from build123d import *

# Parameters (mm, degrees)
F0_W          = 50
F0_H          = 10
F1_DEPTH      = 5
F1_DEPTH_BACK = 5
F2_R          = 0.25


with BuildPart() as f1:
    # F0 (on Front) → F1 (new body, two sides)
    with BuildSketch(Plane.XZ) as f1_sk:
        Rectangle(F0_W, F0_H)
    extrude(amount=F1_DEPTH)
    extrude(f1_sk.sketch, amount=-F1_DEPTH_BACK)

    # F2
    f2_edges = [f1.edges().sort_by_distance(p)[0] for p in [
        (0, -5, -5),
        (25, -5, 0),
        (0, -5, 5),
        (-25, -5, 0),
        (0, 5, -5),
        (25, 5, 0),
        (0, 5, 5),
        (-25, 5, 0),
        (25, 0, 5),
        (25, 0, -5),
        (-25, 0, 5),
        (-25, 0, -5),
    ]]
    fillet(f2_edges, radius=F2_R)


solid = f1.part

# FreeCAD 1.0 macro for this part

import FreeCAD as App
import Part
import Sketcher

doc = App.newDocument("Part")
params = doc.addObject("Spreadsheet::Sheet", "Params")
for row, (alias, value) in enumerate([
    ("sketch1_width", "50 mm"),
    ("sketch1_height", "10 mm"),
    ("pad1_length", "5 mm"),
    ("pad1_length2", "5 mm"),
    ("fillet_radius", "0.25 mm"),
], start=1):
    params.set(f"A{row}", alias)
    params.set(f"B{row}", "=" + value)
    params.setAlias(f"B{row}", alias)

body = doc.addObject("PartDesign::Body", "Body")

# Sketch on XZ plane
sketch1 = doc.addObject("Sketcher::SketchObject", "Sketch")
body.addObject(sketch1)
sketch1.AttachmentSupport = (doc.XZ_Plane, [""])
sketch1.MapMode = "FlatFace"
sketch1.addGeometry(Part.LineSegment(App.Vector(-25, 5, 0), App.Vector(-25, -5, 0)), False)
sketch1.addGeometry(Part.LineSegment(App.Vector(-25, -5, 0), App.Vector(25, -5, 0)), False)
sketch1.addGeometry(Part.LineSegment(App.Vector(25, -5, 0), App.Vector(25, 5, 0)), False)
sketch1.addGeometry(Part.LineSegment(App.Vector(25, 5, 0), App.Vector(-25, 5, 0)), False)
sketch1.addConstraint(Sketcher.Constraint("Coincident", 0, 2, 1, 1))
sketch1.addConstraint(Sketcher.Constraint("Coincident", 1, 2, 2, 1))
sketch1.addConstraint(Sketcher.Constraint("Coincident", 2, 2, 3, 1))
sketch1.addConstraint(Sketcher.Constraint("Coincident", 3, 2, 0, 1))
sketch1.addConstraint(Sketcher.Constraint("Vertical", 0))
sketch1.addConstraint(Sketcher.Constraint("Horizontal", 1))
sketch1.addConstraint(Sketcher.Constraint("Vertical", 2))
sketch1.addConstraint(Sketcher.Constraint("Horizontal", 3))
sketch1.addConstraint(Sketcher.Constraint("Symmetric", 0, 2, 2, 2, -1, 1))
sketch1.addConstraint(Sketcher.Constraint("DistanceX", 1, 1, 1, 2, 50.0))
sketch1.addConstraint(Sketcher.Constraint("DistanceY", 0, 2, 0, 1, 10.0))
sketch1.setExpression("Constraints[9]", "Params.sketch1_width")
sketch1.setExpression("Constraints[10]", "Params.sketch1_height")
pad1 = doc.addObject("PartDesign::Pad", "Pad")
body.addObject(pad1)
pad1.Profile = sketch1
pad1.Type = "TwoLengths"
pad1.setExpression("Length", "Params.pad1_length")
pad1.setExpression("Length2", "Params.pad1_length2")
doc.recompute()

fillet = doc.addObject("PartDesign::Fillet", "Fillet")
body.addObject(fillet)
fillet.Base = (pad1, ["Edge1"])
fillet.UseAllEdges = True
fillet.setExpression("Radius", "Params.fillet_radius")

doc.recompute()
